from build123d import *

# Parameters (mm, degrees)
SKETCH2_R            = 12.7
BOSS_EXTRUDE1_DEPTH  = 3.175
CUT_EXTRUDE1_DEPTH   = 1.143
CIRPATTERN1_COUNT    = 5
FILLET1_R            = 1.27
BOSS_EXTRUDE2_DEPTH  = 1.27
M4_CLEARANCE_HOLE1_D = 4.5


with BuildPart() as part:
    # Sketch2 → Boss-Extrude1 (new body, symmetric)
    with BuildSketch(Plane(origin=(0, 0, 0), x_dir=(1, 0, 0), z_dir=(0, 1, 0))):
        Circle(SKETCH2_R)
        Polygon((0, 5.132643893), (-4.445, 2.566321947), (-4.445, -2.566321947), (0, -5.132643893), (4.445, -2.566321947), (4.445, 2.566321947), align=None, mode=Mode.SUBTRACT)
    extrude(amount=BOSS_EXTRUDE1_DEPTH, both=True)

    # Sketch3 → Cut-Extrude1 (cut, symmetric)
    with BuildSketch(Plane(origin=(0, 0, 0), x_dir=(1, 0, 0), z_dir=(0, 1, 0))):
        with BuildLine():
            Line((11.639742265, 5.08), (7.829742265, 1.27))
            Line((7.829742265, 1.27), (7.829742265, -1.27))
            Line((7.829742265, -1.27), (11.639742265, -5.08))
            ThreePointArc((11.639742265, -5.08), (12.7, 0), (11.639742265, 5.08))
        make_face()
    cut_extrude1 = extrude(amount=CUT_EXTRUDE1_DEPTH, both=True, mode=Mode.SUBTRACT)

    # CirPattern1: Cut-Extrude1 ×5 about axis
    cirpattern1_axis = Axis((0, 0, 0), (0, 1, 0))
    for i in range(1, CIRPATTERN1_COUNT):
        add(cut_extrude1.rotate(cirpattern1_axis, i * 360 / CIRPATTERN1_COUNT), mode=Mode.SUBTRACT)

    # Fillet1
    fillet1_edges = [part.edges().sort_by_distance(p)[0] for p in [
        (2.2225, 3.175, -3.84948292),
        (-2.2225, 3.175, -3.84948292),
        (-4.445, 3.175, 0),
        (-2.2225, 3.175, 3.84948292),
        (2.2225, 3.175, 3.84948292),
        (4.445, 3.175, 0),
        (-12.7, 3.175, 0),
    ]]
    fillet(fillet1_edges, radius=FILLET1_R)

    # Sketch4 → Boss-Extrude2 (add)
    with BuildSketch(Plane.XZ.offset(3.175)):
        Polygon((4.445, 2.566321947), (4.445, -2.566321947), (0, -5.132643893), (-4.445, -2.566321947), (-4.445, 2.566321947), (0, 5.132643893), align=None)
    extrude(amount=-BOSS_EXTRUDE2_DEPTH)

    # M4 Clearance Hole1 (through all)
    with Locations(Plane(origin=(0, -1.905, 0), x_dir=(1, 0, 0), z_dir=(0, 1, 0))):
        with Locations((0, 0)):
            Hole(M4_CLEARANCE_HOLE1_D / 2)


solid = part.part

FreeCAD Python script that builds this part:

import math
import FreeCAD as App
import Part
import Sketcher

V = App.Vector
Q = App.Units.Quantity


def edges_at(feature, points):
    """Names of the edges that pass closest to the given points."""
    edges = feature.Shape.Edges
    near = lambda p: min(range(len(edges)), key=lambda i: edges[i].distToShape(Part.Vertex(*p))[0])
    return sorted({f"Edge{near(p) + 1}" for p in points})


def add_polygon(sketch, points):
    """Adds a closed chain of lines whose ends are joined by coincident constraints."""
    first, n = sketch.GeometryCount, len(points)
    for a, b in zip(points, points[1:] + points[:1]):
        sketch.addGeometry(Part.LineSegment(App.Vector(*a, 0), App.Vector(*b, 0)), False)
    for i in range(n):
        sketch.addConstraint(Sketcher.Constraint("Coincident", first + i, 2, first + (i + 1) % n, 1))

doc = App.newDocument("Part")
params = doc.addObject("Spreadsheet::Sheet", "Params")
for row, (alias, value) in enumerate([
    ("sketch1_diameter", "1 in"),
    ("pad1_length", "0.25 in"),
    ("sketch2_radius", "0.5 in"),
    ("sketch2_height", "0.1 in"),
    ("pocket1_length", "0.09 in"),
    ("fillet_radius", "0.05 in"),
    ("pad2_length", "0.05 in"),
    ("hole_diameter", "4.5 mm"),
], start=1):
    params.set(f"A{row}", alias)
    params.set(f"B{row}", "=" + value)
    params.setAlias(f"B{row}", alias)

body = doc.addObject("PartDesign::Body", "Body")

# Sketch on XZ plane
sketch1 = body.newObject("Sketcher::SketchObject", "Sketch")
sketch1.AttachmentSupport = (doc.getObject("XZ_Plane"), [""])
sketch1.MapMode = "FlatFace"
sketch1.addGeometry(Part.Circle(V(0, 0, 0), V(0, 0, 1), 12.7), False)  # 0
add_polygon(sketch1, [(-4.445, -2.566322), (0, -5.132644), (4.445, -2.566322), (4.445, 2.566322), (0, 5.132644), (-4.445, 2.566322)])  # lines 1-6
sketch1.addConstraint(Sketcher.Constraint("Vertical", 3))
sketch1.addConstraint(Sketcher.Constraint("Vertical", 6))
sketch1.addConstraint(Sketcher.Constraint("Coincident", 0, 3, -1, 1))
sketch1.addConstraint(Sketcher.Constraint("Symmetric", 1, 2, 4, 2, -1, 1))
sketch1.addConstraint(Sketcher.Constraint("Symmetric", 2, 2, 5, 2, -1, 1))
sketch1.addConstraint(Sketcher.Constraint("PointOnObject", 1, 2, -2))
sketch1.addConstraint(Sketcher.Constraint("Parallel", 1, 4))
sketch1.addConstraint(Sketcher.Constraint("Horizontal", 3, 2, 5, 2))
sketch1.addConstraint(Sketcher.Constraint("Diameter", 0, Q("1 in")))
sketch1.addConstraint(Sketcher.Constraint("Angle", 1, Q("-30 deg")))
sketch1.addConstraint(Sketcher.Constraint("DistanceX", 5, 2, 3, 2, Q("0.35 in")))
sketch1.addConstraint(Sketcher.Constraint("DistanceY", 3, 1, 3, 2, 5.132644))
sketch1.setExpression("Constraints[14]", "Params.sketch1_diameter")
pad1 = body.newObject("PartDesign::Pad", "Pad")
pad1.Profile = sketch1
pad1.setExpression("Length", "Params.pad1_length")
pad1.Midplane = True

# Sketch on XZ plane
sketch2 = body.newObject("Sketcher::SketchObject", "Sketch001")
sketch2.AttachmentSupport = (doc.getObject("XZ_Plane"), [""])
sketch2.MapMode = "FlatFace"
sketch2.addGeometry(Part.LineSegment(V(11.639742, -5.08, 0), V(7.829742, -1.27, 0)), False)
sketch2.addGeometry(Part.LineSegment(V(7.829742, -1.27, 0), V(7.829742, 1.27, 0)), False)
sketch2.addGeometry(Part.LineSegment(V(7.829742, 1.27, 0), V(11.639742, 5.08, 0)), False)
sketch2.addGeometry(Part.ArcOfCircle(Part.Circle(V(0, 0, 0), V(0, 0, 1), 12.7), math.radians(-23.578178), math.radians(23.578178)), False)
sketch2.addConstraint(Sketcher.Constraint("Coincident", 0, 2, 1, 1))
sketch2.addConstraint(Sketcher.Constraint("Coincident", 1, 2, 2, 1))
sketch2.addConstraint(Sketcher.Constraint("Coincident", 2, 2, 3, 2))
sketch2.addConstraint(Sketcher.Constraint("Coincident", 3, 1, 0, 1))
sketch2.addConstraint(Sketcher.Constraint("Vertical", 1))
sketch2.addConstraint(Sketcher.Constraint("Coincident", 3, 3, -1, 1))
sketch2.addConstraint(Sketcher.Constraint("Perpendicular", 0, 2))
sketch2.addConstraint(Sketcher.Constraint("Vertical", 2, 2, 3, 1))
sketch2.addConstraint(Sketcher.Constraint("Equal", 0, 2))
sketch2.addConstraint(Sketcher.Constraint("Radius", 3, Q("0.5 in")))
sketch2.addConstraint(Sketcher.Constraint("DistanceY", 1, 1, 1, 2, Q("0.1 in")))
sketch2.addConstraint(Sketcher.Constraint("DistanceY", -1, 1, 2, 2, Q("0.2 in")))
sketch2.setExpression("Constraints[9]", "Params.sketch2_radius")
sketch2.setExpression("Constraints[10]", "Params.sketch2_height")
pocket1 = body.newObject("PartDesign::Pocket", "Pocket")
pocket1.Profile = sketch2
pocket1.setExpression("Length", "Params.pocket1_length")
pocket1.Midplane = True
doc.recompute()

polarpattern = body.newObject("PartDesign::PolarPattern", "PolarPattern")
polarpattern.Originals = [pocket1]
polarpattern.Axis = (doc.getObject("Y_Axis"), [""])
polarpattern.Angle = 360
polarpattern.Occurrences = 5
body.Tip = polarpattern
doc.recompute()

fillet = body.newObject("PartDesign::Fillet", "Fillet")
fillet.Base = (polarpattern, edges_at(polarpattern, [
    (2.223, 3.175, -3.849),
    (-2.223, 3.175, -3.849),
    (-4.445, 3.175, 0),
    (-2.223, 3.175, 3.849),
    (2.223, 3.175, 3.849),
    (4.445, 3.175, 0),
    (-12.7, 3.175, 0),
]))
fillet.setExpression("Radius", "Params.fillet_radius")

# Sketch on XZ plane
sketch3 = body.newObject("Sketcher::SketchObject", "Sketch002")
sketch3.AttachmentSupport = (doc.getObject("XZ_Plane"), [""])
sketch3.MapMode = "FlatFace"
sketch3.AttachmentOffset = App.Placement(V(0, 0, 0.125 * 25.4), App.Rotation())
add_polygon(sketch3, [(4.445, -2.566322), (4.445, 2.566322), (0, 5.132644), (-4.445, 2.566322), (-4.445, -2.566322), (0, -5.132644)])  # lines 0-5
sketch3.addConstraint(Sketcher.Constraint("Vertical", 0))
sketch3.addConstraint(Sketcher.Constraint("Vertical", 3))
sketch3.addConstraint(Sketcher.Constraint("Symmetric", 0, 2, 3, 2, -1, 1))
sketch3.addConstraint(Sketcher.Constraint("Symmetric", 1, 2, 4, 2, -1, 1))
sketch3.addConstraint(Sketcher.Constraint("PointOnObject", 1, 2, -2))
sketch3.addConstraint(Sketcher.Constraint("Parallel", 2, 5))
sketch3.addConstraint(Sketcher.Constraint("Horizontal", 0, 2, 2, 2))
sketch3.addConstraint(Sketcher.Constraint("Angle", 1, Q("150 deg")))
sketch3.addConstraint(Sketcher.Constraint("DistanceX", 2, 2, 0, 2, Q("0.35 in")))
sketch3.addConstraint(Sketcher.Constraint("DistanceY", 0, 1, 0, 2, 5.132644))
pad2 = body.newObject("PartDesign::Pad", "Pad001")
pad2.Profile = sketch3
pad2.setExpression("Length", "Params.pad2_length")
pad2.Reversed = True

# Sketch on XZ plane
sketch4 = body.newObject("Sketcher::SketchObject", "Sketch003")
sketch4.AttachmentSupport = (doc.getObject("XZ_Plane"), [""])
sketch4.MapMode = "FlatFace"
sketch4.AttachmentOffset = App.Placement(V(0, 0, 0.075 * 25.4), App.Rotation())
sketch4.addGeometry(Part.Circle(V(0, 0, 0), V(0, 0, 1), 2.25), False)
sketch4.addConstraint(Sketcher.Constraint("Coincident", 0, 3, -1, 1))
sketch4.addConstraint(Sketcher.Constraint("Diameter", 0, 4.5))
doc.recompute()
hole = body.newObject("PartDesign::Hole", "Hole")
hole.Profile = sketch4
hole.ThreadType = "None"
hole.setExpression("Diameter", "Params.hole_diameter")
hole.DepthType = "ThroughAll"
hole.Reversed = True

doc.recompute()
